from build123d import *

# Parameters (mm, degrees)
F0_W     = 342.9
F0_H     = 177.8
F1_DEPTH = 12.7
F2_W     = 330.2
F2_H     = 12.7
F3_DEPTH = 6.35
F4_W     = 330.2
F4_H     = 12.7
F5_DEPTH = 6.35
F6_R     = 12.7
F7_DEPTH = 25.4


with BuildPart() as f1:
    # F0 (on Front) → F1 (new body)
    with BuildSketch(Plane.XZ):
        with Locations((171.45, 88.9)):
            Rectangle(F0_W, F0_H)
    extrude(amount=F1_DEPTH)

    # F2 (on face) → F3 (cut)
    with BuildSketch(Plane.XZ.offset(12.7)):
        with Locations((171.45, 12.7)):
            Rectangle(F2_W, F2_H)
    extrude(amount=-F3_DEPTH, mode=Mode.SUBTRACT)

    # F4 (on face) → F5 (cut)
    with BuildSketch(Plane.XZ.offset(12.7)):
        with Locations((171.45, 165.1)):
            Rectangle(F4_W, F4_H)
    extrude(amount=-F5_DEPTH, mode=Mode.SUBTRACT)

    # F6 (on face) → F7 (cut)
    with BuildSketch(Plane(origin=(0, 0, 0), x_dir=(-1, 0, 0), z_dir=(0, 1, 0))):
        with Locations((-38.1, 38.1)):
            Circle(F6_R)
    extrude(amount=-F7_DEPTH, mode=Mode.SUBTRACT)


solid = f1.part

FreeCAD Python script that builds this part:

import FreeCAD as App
import Part
import Sketcher

V = App.Vector
Q = App.Units.Quantity


def add_polygon(sketch, points):
    """Adds a closed chain of lines whose ends are joined by coincident constraints."""
    first, n = sketch.GeometryCount, len(points)
    for a, b in zip(points, points[1:] + points[:1]):
        sketch.addGeometry(Part.LineSegment(App.Vector(*a, 0), App.Vector(*b, 0)), False)
    for i in range(n):
        sketch.addConstraint(Sketcher.Constraint("Coincident", first + i, 2, first + (i + 1) % n, 1))

doc = App.newDocument("Part")
body = doc.addObject("PartDesign::Body", "Body")

# Sketch on XZ plane
sketch1 = doc.addObject("Sketcher::SketchObject", "Sketch")
body.addObject(sketch1)
sketch1.AttachmentSupport = (doc.XZ_Plane, [""])
sketch1.MapMode = "FlatFace"
add_polygon(sketch1, [(0, 178), (0, 0), (343, 0), (343, 178)])  # lines 0-3
sketch1.addConstraint(Sketcher.Constraint("Vertical", 0))
sketch1.addConstraint(Sketcher.Constraint("Horizontal", 1))
sketch1.addConstraint(Sketcher.Constraint("Vertical", 2))
sketch1.addConstraint(Sketcher.Constraint("Horizontal", 3))
sketch1.addConstraint(Sketcher.Constraint("Coincident", 0, 2, -1, 1))
sketch1.addConstraint(Sketcher.Constraint("DistanceY", 0, 2, 0, 1, Q("7 in")))
sketch1.addConstraint(Sketcher.Constraint("DistanceX", 1, 1, 1, 2, Q("13.5 in")))
pad1 = doc.addObject("PartDesign::Pad", "Pad")
body.addObject(pad1)
pad1.Profile = sketch1
pad1.Length = Q("0.5 in")

# Sketch on XZ plane
sketch2 = doc.addObject("Sketcher::SketchObject", "Sketch001")
body.addObject(sketch2)
sketch2.AttachmentSupport = (doc.XZ_Plane, [""])
sketch2.MapMode = "FlatFace"
sketch2.AttachmentOffset = App.Placement(V(0, 0, 0.5 * 25.4), App.Rotation())
add_polygon(sketch2, [(6, 19), (6, 6), (337, 6), (337, 19)])  # lines 0-3
sketch2.addConstraint(Sketcher.Constraint("Vertical", 0))
sketch2.addConstraint(Sketcher.Constraint("Horizontal", 1))
sketch2.addConstraint(Sketcher.Constraint("Vertical", 2))
sketch2.addConstraint(Sketcher.Constraint("Horizontal", 3))
sketch2.addConstraint(Sketcher.Constraint("DistanceX", 1, 1, 1, 2, Q("13 in")))
sketch2.addConstraint(Sketcher.Constraint("DistanceY", 0, 2, 0, 1, Q("0.5 in")))
sketch2.addConstraint(Sketcher.Constraint("DistanceX", -1, 1, 0, 2, Q("0.25 in")))
sketch2.addConstraint(Sketcher.Constraint("DistanceY", -1, 1, 0, 2, Q("0.25 in")))
pocket1 = doc.addObject("PartDesign::Pocket", "Pocket")
body.addObject(pocket1)
pocket1.Profile = sketch2
pocket1.Length = Q("0.25 in")

# Sketch on XZ plane
sketch3 = doc.addObject("Sketcher::SketchObject", "Sketch002")
body.addObject(sketch3)
sketch3.AttachmentSupport = (doc.XZ_Plane, [""])
sketch3.MapMode = "FlatFace"
sketch3.AttachmentOffset = App.Placement(V(0, 0, 0.5 * 25.4), App.Rotation())
add_polygon(sketch3, [(6, 171), (6, 159), (337, 159), (337, 171)])  # lines 0-3
sketch3.addConstraint(Sketcher.Constraint("Vertical", 0))
sketch3.addConstraint(Sketcher.Constraint("Horizontal", 1))
sketch3.addConstraint(Sketcher.Constraint("Vertical", 2))
sketch3.addConstraint(Sketcher.Constraint("Horizontal", 3))
sketch3.addConstraint(Sketcher.Constraint("DistanceX", 1, 1, 1, 2, Q("13 in")))
sketch3.addConstraint(Sketcher.Constraint("DistanceY", 0, 2, 0, 1, Q("0.5 in")))
sketch3.addConstraint(Sketcher.Constraint("DistanceX", -1, 1, 0, 2, Q("0.25 in")))
sketch3.addConstraint(Sketcher.Constraint("DistanceY", -1, 1, 0, 2, Q("6.25 in")))
pocket2 = doc.addObject("PartDesign::Pocket", "Pocket001")
body.addObject(pocket2)
pocket2.Profile = sketch3
pocket2.Length = Q("0.25 in")

# Sketch on XZ plane
sketch4 = doc.addObject("Sketcher::SketchObject", "Sketch003")
body.addObject(sketch4)
sketch4.AttachmentSupport = (doc.XZ_Plane, [""])
sketch4.MapMode = "FlatFace"
sketch4.addGeometry(Part.Circle(V(38, 38, 0), V(0, 0, 1), 13), False)
sketch4.addConstraint(Sketcher.Constraint("Diameter", 0, Q("1 in")))
sketch4.addConstraint(Sketcher.Constraint("DistanceX", -1, 1, 0, 3, Q("1.5 in")))
sketch4.addConstraint(Sketcher.Constraint("DistanceY", -1, 1, 0, 3, Q("1.5 in")))
pocket3 = doc.addObject("PartDesign::Pocket", "Pocket002")
body.addObject(pocket3)
pocket3.Profile = sketch4
pocket3.Length = Q("1 in")
pocket3.Reversed = True

doc.recompute()
